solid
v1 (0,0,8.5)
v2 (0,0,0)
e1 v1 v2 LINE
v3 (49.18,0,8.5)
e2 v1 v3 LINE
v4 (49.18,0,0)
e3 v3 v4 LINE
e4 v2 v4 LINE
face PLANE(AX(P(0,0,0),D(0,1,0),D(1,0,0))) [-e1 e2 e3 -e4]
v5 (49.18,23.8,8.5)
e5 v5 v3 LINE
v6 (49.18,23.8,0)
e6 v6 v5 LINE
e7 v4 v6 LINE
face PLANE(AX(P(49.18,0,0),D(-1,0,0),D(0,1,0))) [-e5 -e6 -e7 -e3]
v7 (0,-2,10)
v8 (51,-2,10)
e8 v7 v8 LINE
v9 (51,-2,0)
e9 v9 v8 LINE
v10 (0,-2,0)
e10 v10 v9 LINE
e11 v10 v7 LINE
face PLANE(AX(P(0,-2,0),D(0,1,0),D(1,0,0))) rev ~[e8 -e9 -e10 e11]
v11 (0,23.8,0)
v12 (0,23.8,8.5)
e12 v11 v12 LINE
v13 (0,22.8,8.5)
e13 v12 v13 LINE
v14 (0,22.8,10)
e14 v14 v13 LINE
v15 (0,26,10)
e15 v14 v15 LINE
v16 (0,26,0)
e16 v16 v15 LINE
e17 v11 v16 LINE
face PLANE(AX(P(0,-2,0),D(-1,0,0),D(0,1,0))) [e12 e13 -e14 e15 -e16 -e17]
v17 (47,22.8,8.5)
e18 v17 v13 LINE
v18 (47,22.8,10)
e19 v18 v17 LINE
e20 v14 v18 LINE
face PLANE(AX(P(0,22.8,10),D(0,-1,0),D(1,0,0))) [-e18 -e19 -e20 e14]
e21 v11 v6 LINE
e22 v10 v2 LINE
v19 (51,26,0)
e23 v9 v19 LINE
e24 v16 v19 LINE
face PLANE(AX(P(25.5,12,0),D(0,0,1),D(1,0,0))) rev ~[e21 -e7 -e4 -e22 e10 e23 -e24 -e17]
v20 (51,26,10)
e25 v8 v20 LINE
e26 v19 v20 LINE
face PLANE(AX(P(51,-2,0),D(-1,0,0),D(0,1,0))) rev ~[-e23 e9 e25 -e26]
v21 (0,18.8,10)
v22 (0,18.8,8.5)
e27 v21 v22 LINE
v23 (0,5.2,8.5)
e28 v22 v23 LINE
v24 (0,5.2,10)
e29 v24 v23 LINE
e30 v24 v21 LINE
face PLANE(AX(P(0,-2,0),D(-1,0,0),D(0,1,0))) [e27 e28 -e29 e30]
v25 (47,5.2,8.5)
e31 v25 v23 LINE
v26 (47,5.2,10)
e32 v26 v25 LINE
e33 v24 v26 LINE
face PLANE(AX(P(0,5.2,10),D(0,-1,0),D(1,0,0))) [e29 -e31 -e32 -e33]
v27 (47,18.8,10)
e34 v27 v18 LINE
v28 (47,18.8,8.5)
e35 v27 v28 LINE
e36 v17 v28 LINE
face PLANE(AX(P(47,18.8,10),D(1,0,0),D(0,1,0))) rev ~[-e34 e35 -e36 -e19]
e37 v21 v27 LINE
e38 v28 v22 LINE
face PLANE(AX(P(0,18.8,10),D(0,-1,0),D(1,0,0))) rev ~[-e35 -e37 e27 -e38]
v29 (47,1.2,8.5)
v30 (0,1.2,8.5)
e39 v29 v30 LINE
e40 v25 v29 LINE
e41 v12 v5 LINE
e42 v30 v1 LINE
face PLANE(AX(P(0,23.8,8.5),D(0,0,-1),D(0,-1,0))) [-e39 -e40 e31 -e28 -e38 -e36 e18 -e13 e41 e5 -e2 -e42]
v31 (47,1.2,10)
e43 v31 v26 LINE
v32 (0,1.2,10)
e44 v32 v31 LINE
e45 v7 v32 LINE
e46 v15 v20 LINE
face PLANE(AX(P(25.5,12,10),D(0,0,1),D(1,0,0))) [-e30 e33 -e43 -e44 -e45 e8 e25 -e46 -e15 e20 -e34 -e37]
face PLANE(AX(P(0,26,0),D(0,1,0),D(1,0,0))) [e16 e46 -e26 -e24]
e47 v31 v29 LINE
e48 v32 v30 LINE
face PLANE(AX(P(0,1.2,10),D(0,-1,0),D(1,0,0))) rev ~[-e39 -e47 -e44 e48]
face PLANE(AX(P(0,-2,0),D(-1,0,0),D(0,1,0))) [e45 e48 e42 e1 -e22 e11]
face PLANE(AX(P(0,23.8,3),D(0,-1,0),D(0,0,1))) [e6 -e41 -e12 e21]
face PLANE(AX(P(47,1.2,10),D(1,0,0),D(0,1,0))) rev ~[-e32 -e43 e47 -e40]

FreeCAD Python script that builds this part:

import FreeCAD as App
import Part
import Sketcher

V = App.Vector
Q = App.Units.Quantity

doc = App.newDocument("Part")
body = doc.addObject("PartDesign::Body", "Body")

# Sketch on XY plane
sketch1 = body.newObject("Sketcher::SketchObject", "Sketch")
sketch1.AttachmentSupport = (doc.getObject("XY_Plane"), [""])
sketch1.MapMode = "FlatFace"
sketch1.addGeometry(Part.LineSegment(V(0, 23.8, 0), V(0, 0, 0)), False)
sketch1.addGeometry(Part.LineSegment(V(0, 0, 0), V(49.18, 0, 0)), False)
sketch1.addGeometry(Part.LineSegment(V(49.18, 0, 0), V(49.18, 23.8, 0)), False)
sketch1.addGeometry(Part.LineSegment(V(49.18, 23.8, 0), V(0, 23.8, 0)), False)
sketch1.addConstraint(Sketcher.Constraint("Coincident", 0, 2, 1, 1))
sketch1.addConstraint(Sketcher.Constraint("Coincident", 1, 2, 2, 1))
sketch1.addConstraint(Sketcher.Constraint("Coincident", 2, 2, 3, 1))
sketch1.addConstraint(Sketcher.Constraint("Coincident", 3, 2, 0, 1))
sketch1.addConstraint(Sketcher.Constraint("Vertical", 0))
sketch1.addConstraint(Sketcher.Constraint("Horizontal", 1))
sketch1.addConstraint(Sketcher.Constraint("Vertical", 2))
sketch1.addConstraint(Sketcher.Constraint("Horizontal", 3))
sketch1.addConstraint(Sketcher.Constraint("Coincident", 0, 2, -1, 1))
sketch1.addConstraint(Sketcher.Constraint("DistanceY", 0, 2, 0, 1, Q("23.8 mm")))
sketch1.addConstraint(Sketcher.Constraint("DistanceX", 1, 1, 1, 2, Q("49.18 mm")))
pad1 = body.newObject("PartDesign::Pad", "Pad")
pad1.Profile = sketch1
pad1.Length = 5

# Sketch on XY plane
sketch2 = body.newObject("Sketcher::SketchObject", "Sketch001")
sketch2.AttachmentSupport = (doc.getObject("XY_Plane"), [""])
sketch2.MapMode = "FlatFace"
sketch2.AttachmentOffset = App.Placement(V(0, 0, 5), App.Rotation())
sketch2.addGeometry(Part.LineSegment(V(3, 20.8, 0), V(3, 3, 0)), False)
sketch2.addGeometry(Part.LineSegment(V(3, 3, 0), V(46.2, 3, 0)), False)
sketch2.addGeometry(Part.LineSegment(V(46.2, 3, 0), V(46.2, 20.8, 0)), False)
sketch2.addGeometry(Part.LineSegment(V(46.2, 20.8, 0), V(3, 20.8, 0)), False)
sketch2.addConstraint(Sketcher.Constraint("Coincident", 0, 2, 1, 1))
sketch2.addConstraint(Sketcher.Constraint("Coincident", 1, 2, 2, 1))
sketch2.addConstraint(Sketcher.Constraint("Coincident", 2, 2, 3, 1))
sketch2.addConstraint(Sketcher.Constraint("Coincident", 3, 2, 0, 1))
sketch2.addConstraint(Sketcher.Constraint("Vertical", 0))
sketch2.addConstraint(Sketcher.Constraint("Horizontal", 1))
sketch2.addConstraint(Sketcher.Constraint("Vertical", 2))
sketch2.addConstraint(Sketcher.Constraint("Horizontal", 3))
sketch2.addConstraint(Sketcher.Constraint("DistanceX", 1, 1, 1, 2, Q("43.2 mm")))
sketch2.addConstraint(Sketcher.Constraint("DistanceY", 0, 2, 0, 1, Q("17.8 mm")))
sketch2.addConstraint(Sketcher.Constraint("DistanceX", -1, 1, 0, 2, Q("3 mm")))
sketch2.addConstraint(Sketcher.Constraint("DistanceY", -1, 1, 0, 2, Q("3 mm")))
pocket1 = body.newObject("PartDesign::Pocket", "Pocket")
pocket1.Profile = sketch2
pocket1.Length = 2

# Sketch on XY plane
sketch3 = body.newObject("Sketcher::SketchObject", "Sketch002")
sketch3.AttachmentSupport = (doc.getObject("XY_Plane"), [""])
sketch3.MapMode = "FlatFace"
sketch3.AttachmentOffset = App.Placement(V(0, 0, 5), App.Rotation())
sketch3.addGeometry(Part.LineSegment(V(0, 16.4, 0), V(0, 7.4, 0)), False)
sketch3.addGeometry(Part.LineSegment(V(0, 7.4, 0), V(3, 7.4, 0)), False)
sketch3.addGeometry(Part.LineSegment(V(3, 7.4, 0), V(3, 16.4, 0)), False)
sketch3.addGeometry(Part.LineSegment(V(3, 16.4, 0), V(0, 16.4, 0)), False)
sketch3.addConstraint(Sketcher.Constraint("Coincident", 0, 2, 1, 1))
sketch3.addConstraint(Sketcher.Constraint("Coincident", 1, 2, 2, 1))
sketch3.addConstraint(Sketcher.Constraint("Coincident", 2, 2, 3, 1))
sketch3.addConstraint(Sketcher.Constraint("Coincident", 3, 2, 0, 1))
sketch3.addConstraint(Sketcher.Constraint("Vertical", 0))
sketch3.addConstraint(Sketcher.Constraint("Horizontal", 1))
sketch3.addConstraint(Sketcher.Constraint("Vertical", 2))
sketch3.addConstraint(Sketcher.Constraint("Horizontal", 3))
sketch3.addConstraint(Sketcher.Constraint("PointOnObject", 0, 2, -2))
sketch3.addConstraint(Sketcher.Constraint("DistanceX", 1, 1, 1, 2, Q("3 mm")))
sketch3.addConstraint(Sketcher.Constraint("DistanceY", 0, 2, 0, 1, Q("9 mm")))
sketch3.addConstraint(Sketcher.Constraint("DistanceY", -1, 1, 0, 2, Q("7.4 mm")))
pocket2 = body.newObject("PartDesign::Pocket", "Pocket001")
pocket2.Profile = sketch3
pocket2.Length = 2
body2 = doc.addObject("PartDesign::Body", "Body001")

# Sketch on XY plane
sketch4 = body2.newObject("Sketcher::SketchObject", "Sketch003")
sketch4.AttachmentSupport = (doc.getObject("XY_Plane001"), [""])
sketch4.MapMode = "FlatFace"
sketch4.addGeometry(Part.LineSegment(V(0, 26, 0), V(0, -2, 0)), False)
sketch4.addGeometry(Part.LineSegment(V(0, -2, 0), V(51, -2, 0)), False)
sketch4.addGeometry(Part.LineSegment(V(51, -2, 0), V(51, 26, 0)), False)
sketch4.addGeometry(Part.LineSegment(V(51, 26, 0), V(0, 26, 0)), False)
sketch4.addConstraint(Sketcher.Constraint("Coincident", 0, 2, 1, 1))
sketch4.addConstraint(Sketcher.Constraint("Coincident", 1, 2, 2, 1))
sketch4.addConstraint(Sketcher.Constraint("Coincident", 2, 2, 3, 1))
sketch4.addConstraint(Sketcher.Constraint("Coincident", 3, 2, 0, 1))
sketch4.addConstraint(Sketcher.Constraint("Vertical", 0))
sketch4.addConstraint(Sketcher.Constraint("Horizontal", 1))
sketch4.addConstraint(Sketcher.Constraint("Vertical", 2))
sketch4.addConstraint(Sketcher.Constraint("Horizontal", 3))
sketch4.addConstraint(Sketcher.Constraint("PointOnObject", 0, 2, -2))
sketch4.addConstraint(Sketcher.Constraint("DistanceX", 1, 1, 1, 2, Q("51 mm")))
sketch4.addConstraint(Sketcher.Constraint("DistanceY", 0, 2, 0, 1, Q("28 mm")))
sketch4.addConstraint(Sketcher.Constraint("DistanceY", 0, 2, -1, 1, Q("2 mm")))
pad2 = body2.newObject("PartDesign::Pad", "Pad001")
pad2.Profile = sketch4
pad2.Length = 10
doc.recompute()

boolean = body2.newObject("PartDesign::Boolean", "Boolean")
boolean.Type = "Cut"
boolean.addObjects([body])

# Sketch on YZ plane
sketch5 = body2.newObject("Sketcher::SketchObject", "Sketch004")
sketch5.AttachmentSupport = (doc.getObject("YZ_Plane001"), [""])
sketch5.MapMode = "FlatFace"
sketch5.addGeometry(Part.LineSegment(V(23.8, 8.5, 0), V(23.8, 3, 0)), False)
sketch5.addGeometry(Part.LineSegment(V(23.8, 3, 0), V(0, 3, 0)), False)
sketch5.addGeometry(Part.LineSegment(V(0, 3, 0), V(0, 8.5, 0)), False)
sketch5.addGeometry(Part.LineSegment(V(0, 8.5, 0), V(23.8, 8.5, 0)), False)
sketch5.addConstraint(Sketcher.Constraint("Coincident", 0, 2, 1, 1))
sketch5.addConstraint(Sketcher.Constraint("Coincident", 1, 2, 2, 1))
sketch5.addConstraint(Sketcher.Constraint("Coincident", 2, 2, 3, 1))
sketch5.addConstraint(Sketcher.Constraint("Coincident", 3, 2, 0, 1))
sketch5.addConstraint(Sketcher.Constraint("Vertical", 0))
sketch5.addConstraint(Sketcher.Constraint("Horizontal", 1))
sketch5.addConstraint(Sketcher.Constraint("Vertical", 2))
sketch5.addConstraint(Sketcher.Constraint("Horizontal", 3))
sketch5.addConstraint(Sketcher.Constraint("PointOnObject", 1, 2, -2))
sketch5.addConstraint(Sketcher.Constraint("DistanceX", 1, 2, 1, 1, Q("23.8 mm")))
sketch5.addConstraint(Sketcher.Constraint("DistanceY", 0, 2, 0, 1, Q("5.5 mm")))
sketch5.addConstraint(Sketcher.Constraint("DistanceY", -1, 1, 0, 2, Q("3 mm")))
pocket3 = body2.newObject("PartDesign::Pocket", "Pocket002")
pocket3.Profile = sketch5
pocket3.Length = 49.18
pocket3.Reversed = True

# Sketch on XY plane
sketch6 = body2.newObject("Sketcher::SketchObject", "Sketch005")
sketch6.AttachmentSupport = (doc.getObject("XY_Plane001"), [""])
sketch6.MapMode = "FlatFace"
sketch6.AttachmentOffset = App.Placement(V(0, 0, 10), App.Rotation())
sketch6.addGeometry(Part.LineSegment(V(0, 22.8, 0), V(0, 18.8, 0)), False)
sketch6.addGeometry(Part.LineSegment(V(0, 18.8, 0), V(47, 18.8, 0)), False)
sketch6.addGeometry(Part.LineSegment(V(47, 18.8, 0), V(47, 22.8, 0)), False)
sketch6.addGeometry(Part.LineSegment(V(47, 22.8, 0), V(0, 22.8, 0)), False)
sketch6.addGeometry(Part.LineSegment(V(0, 5.2, 0), V(0, 1.2, 0)), False)
sketch6.addGeometry(Part.LineSegment(V(0, 1.2, 0), V(47, 1.2, 0)), False)
sketch6.addGeometry(Part.LineSegment(V(47, 1.2, 0), V(47, 5.2, 0)), False)
sketch6.addGeometry(Part.LineSegment(V(47, 5.2, 0), V(0, 5.2, 0)), False)
sketch6.addConstraint(Sketcher.Constraint("Coincident", 0, 2, 1, 1))
sketch6.addConstraint(Sketcher.Constraint("Coincident", 1, 2, 2, 1))
sketch6.addConstraint(Sketcher.Constraint("Coincident", 2, 2, 3, 1))
sketch6.addConstraint(Sketcher.Constraint("Coincident", 3, 2, 0, 1))
sketch6.addConstraint(Sketcher.Constraint("Coincident", 4, 2, 5, 1))
sketch6.addConstraint(Sketcher.Constraint("Coincident", 5, 2, 6, 1))
sketch6.addConstraint(Sketcher.Constraint("Coincident", 6, 2, 7, 1))
sketch6.addConstraint(Sketcher.Constraint("Coincident", 7, 2, 4, 1))
sketch6.addConstraint(Sketcher.Constraint("Vertical", 0))
sketch6.addConstraint(Sketcher.Constraint("Horizontal", 1))
sketch6.addConstraint(Sketcher.Constraint("Vertical", 2))
sketch6.addConstraint(Sketcher.Constraint("Horizontal", 3))
sketch6.addConstraint(Sketcher.Constraint("Vertical", 4))
sketch6.addConstraint(Sketcher.Constraint("Horizontal", 5))
sketch6.addConstraint(Sketcher.Constraint("Vertical", 6))
sketch6.addConstraint(Sketcher.Constraint("Horizontal", 7))
sketch6.addConstraint(Sketcher.Constraint("PointOnObject", 0, 2, -2))
sketch6.addConstraint(Sketcher.Constraint("PointOnObject", 4, 2, -2))
sketch6.addConstraint(Sketcher.Constraint("Vertical", 2, 2, 5, 2))
sketch6.addConstraint(Sketcher.Constraint("Equal", 2, 4))
sketch6.addConstraint(Sketcher.Constraint("DistanceX", 1, 1, 1, 2, Q("47 mm")))
sketch6.addConstraint(Sketcher.Constraint("DistanceY", 0, 2, 0, 1, Q("4 mm")))
sketch6.addConstraint(Sketcher.Constraint("DistanceY", -1, 1, 0, 2, Q("18.8 mm")))
sketch6.addConstraint(Sketcher.Constraint("DistanceY", -1, 1, 4, 2, Q("1.2 mm")))
pocket4 = body2.newObject("PartDesign::Pocket", "Pocket003")
pocket4.Profile = sketch6
pocket4.Length = 5

doc.recompute()
